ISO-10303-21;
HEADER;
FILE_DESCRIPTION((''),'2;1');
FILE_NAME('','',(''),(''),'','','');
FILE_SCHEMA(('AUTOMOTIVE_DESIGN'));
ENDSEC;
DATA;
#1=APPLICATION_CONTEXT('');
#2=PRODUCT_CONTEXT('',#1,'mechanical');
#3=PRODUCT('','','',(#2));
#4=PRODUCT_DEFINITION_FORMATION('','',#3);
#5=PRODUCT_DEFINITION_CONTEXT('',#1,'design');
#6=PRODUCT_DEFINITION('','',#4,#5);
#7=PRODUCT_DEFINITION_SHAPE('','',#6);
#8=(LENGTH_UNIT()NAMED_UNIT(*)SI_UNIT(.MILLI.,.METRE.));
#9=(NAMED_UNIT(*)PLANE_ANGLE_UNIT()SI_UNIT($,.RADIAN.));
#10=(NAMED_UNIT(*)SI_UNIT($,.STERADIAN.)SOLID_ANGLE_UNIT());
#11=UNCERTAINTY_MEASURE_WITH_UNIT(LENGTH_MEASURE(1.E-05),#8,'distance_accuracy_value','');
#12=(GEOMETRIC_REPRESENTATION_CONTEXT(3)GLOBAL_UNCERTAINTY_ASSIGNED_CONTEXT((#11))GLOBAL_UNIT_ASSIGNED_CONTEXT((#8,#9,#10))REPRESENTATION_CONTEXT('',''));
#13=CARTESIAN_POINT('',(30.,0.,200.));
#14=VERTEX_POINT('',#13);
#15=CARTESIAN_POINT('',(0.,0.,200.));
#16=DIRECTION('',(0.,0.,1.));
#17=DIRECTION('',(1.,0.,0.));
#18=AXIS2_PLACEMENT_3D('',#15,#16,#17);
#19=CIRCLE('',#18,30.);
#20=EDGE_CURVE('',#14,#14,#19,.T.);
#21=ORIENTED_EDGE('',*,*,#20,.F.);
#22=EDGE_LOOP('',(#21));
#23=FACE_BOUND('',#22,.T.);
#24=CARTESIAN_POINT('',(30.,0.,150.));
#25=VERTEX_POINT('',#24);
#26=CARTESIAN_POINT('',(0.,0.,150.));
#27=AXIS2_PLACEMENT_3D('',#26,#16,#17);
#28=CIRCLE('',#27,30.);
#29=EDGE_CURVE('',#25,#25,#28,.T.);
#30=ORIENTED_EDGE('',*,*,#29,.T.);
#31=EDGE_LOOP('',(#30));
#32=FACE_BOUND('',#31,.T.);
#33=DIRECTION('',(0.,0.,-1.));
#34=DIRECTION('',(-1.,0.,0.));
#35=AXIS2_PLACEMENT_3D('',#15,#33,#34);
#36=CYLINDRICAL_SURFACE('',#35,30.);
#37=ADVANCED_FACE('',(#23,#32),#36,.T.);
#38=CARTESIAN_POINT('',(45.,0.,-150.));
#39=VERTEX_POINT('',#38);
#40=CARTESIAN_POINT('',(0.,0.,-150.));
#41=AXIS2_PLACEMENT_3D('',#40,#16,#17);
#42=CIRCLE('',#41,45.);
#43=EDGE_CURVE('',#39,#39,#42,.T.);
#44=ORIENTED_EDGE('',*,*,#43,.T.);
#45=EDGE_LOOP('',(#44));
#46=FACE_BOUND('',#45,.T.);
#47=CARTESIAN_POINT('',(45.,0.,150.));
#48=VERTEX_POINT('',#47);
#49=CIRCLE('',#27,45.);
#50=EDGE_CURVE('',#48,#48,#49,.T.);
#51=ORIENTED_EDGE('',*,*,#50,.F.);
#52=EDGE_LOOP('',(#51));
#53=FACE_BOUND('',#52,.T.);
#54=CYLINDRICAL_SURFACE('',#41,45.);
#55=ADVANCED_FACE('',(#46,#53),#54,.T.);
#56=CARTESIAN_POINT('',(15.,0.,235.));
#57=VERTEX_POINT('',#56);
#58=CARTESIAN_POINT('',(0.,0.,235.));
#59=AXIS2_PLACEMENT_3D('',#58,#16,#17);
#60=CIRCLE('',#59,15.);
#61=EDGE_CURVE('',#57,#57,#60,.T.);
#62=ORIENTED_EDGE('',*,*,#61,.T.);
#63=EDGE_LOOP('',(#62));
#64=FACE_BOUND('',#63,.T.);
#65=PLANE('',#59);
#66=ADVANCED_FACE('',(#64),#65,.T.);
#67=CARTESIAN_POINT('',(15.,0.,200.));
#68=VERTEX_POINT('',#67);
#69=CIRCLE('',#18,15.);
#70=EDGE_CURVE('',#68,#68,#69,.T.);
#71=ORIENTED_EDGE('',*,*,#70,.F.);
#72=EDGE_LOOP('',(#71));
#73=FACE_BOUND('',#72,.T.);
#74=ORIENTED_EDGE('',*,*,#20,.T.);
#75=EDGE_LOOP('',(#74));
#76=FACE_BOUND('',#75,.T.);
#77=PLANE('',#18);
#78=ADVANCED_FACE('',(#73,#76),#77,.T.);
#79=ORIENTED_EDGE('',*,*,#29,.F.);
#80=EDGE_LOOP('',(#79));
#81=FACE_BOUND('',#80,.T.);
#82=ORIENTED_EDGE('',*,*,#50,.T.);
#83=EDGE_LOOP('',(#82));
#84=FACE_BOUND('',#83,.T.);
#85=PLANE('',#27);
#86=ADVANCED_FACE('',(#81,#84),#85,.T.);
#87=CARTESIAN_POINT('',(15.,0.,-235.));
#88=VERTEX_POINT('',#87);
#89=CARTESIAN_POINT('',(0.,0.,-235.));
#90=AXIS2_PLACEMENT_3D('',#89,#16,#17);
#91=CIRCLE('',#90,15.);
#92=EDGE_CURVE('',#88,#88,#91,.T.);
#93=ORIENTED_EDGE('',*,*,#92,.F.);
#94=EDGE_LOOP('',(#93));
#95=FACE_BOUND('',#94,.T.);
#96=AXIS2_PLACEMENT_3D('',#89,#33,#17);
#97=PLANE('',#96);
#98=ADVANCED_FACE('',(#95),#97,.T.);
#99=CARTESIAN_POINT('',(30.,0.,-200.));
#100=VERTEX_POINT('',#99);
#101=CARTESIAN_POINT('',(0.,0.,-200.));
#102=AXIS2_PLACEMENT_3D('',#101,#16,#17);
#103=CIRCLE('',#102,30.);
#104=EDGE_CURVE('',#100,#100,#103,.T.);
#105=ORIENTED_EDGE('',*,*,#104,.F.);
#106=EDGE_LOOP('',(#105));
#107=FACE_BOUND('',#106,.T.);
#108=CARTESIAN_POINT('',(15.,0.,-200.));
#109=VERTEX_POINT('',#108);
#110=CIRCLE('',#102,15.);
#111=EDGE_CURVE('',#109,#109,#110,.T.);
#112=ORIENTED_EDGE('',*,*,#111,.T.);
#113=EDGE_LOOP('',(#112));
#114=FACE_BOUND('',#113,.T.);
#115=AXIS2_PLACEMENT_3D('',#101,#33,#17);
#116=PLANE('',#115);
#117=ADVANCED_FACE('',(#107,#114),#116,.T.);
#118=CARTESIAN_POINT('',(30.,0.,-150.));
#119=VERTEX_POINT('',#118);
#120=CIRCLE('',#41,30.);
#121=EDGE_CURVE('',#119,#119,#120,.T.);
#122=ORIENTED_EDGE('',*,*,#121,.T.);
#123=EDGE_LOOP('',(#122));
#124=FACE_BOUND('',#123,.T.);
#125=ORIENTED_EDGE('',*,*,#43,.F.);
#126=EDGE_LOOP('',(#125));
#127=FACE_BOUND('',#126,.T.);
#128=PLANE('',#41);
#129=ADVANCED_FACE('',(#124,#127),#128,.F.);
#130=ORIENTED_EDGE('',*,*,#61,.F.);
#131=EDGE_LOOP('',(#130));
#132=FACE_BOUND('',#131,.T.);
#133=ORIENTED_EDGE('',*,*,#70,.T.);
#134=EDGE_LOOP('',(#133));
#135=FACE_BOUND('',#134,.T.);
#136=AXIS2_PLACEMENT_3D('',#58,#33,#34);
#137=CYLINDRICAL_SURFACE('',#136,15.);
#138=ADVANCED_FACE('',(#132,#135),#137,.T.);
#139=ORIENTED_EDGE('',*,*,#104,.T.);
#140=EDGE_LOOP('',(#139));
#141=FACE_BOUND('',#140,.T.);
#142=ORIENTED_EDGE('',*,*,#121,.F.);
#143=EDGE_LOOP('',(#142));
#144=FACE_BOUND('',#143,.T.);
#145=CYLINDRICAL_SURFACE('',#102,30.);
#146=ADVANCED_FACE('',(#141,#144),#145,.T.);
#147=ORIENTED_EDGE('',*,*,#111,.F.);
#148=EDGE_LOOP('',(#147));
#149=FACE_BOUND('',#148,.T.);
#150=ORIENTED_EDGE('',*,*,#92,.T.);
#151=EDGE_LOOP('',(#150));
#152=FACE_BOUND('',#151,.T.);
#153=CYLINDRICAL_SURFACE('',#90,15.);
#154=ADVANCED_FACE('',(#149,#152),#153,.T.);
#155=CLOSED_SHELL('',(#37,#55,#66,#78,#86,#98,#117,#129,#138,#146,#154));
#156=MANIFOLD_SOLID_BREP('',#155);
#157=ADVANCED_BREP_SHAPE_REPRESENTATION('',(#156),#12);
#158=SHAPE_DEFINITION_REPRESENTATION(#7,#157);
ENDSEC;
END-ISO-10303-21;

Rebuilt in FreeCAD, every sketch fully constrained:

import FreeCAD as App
import Part
import Sketcher

doc = App.newDocument("Part")
body = doc.addObject("PartDesign::Body", "Body")

# Sketch on XY plane
sketch1 = body.newObject("Sketcher::SketchObject", "Sketch")
sketch1.AttachmentSupport = (doc.getObject("XY_Plane"), [""])
sketch1.MapMode = "FlatFace"
sketch1.addGeometry(Part.Circle(App.Vector(0, 0, 0), App.Vector(0, 0, 1), 45), False)
sketch1.addConstraint(Sketcher.Constraint("Coincident", 0, 3, -1, 1))
sketch1.addConstraint(Sketcher.Constraint("Diameter", 0, 90.0))
pad1 = body.newObject("PartDesign::Pad", "Pad")
pad1.Profile = sketch1
pad1.Length = 300
pad1.Midplane = True

# Sketch on XY plane
sketch2 = body.newObject("Sketcher::SketchObject", "Sketch001")
sketch2.AttachmentSupport = (doc.getObject("XY_Plane"), [""])
sketch2.MapMode = "FlatFace"
sketch2.AttachmentOffset = App.Placement(App.Vector(0, 0, 150), App.Rotation())
sketch2.addGeometry(Part.Circle(App.Vector(0, 0, 0), App.Vector(0, 0, 1), 30), False)
sketch2.addConstraint(Sketcher.Constraint("Coincident", 0, 3, -1, 1))
sketch2.addConstraint(Sketcher.Constraint("Diameter", 0, 60.0))
pad2 = body.newObject("PartDesign::Pad", "Pad001")
pad2.Profile = sketch2
pad2.Length = 50

# Sketch on XY plane
sketch3 = body.newObject("Sketcher::SketchObject", "Sketch002")
sketch3.AttachmentSupport = (doc.getObject("XY_Plane"), [""])
sketch3.MapMode = "FlatFace"
sketch3.AttachmentOffset = App.Placement(App.Vector(0, 0, 200), App.Rotation())
sketch3.addGeometry(Part.Circle(App.Vector(0, 0, 0), App.Vector(0, 0, 1), 15), False)
sketch3.addConstraint(Sketcher.Constraint("Coincident", 0, 3, -1, 1))
sketch3.addConstraint(Sketcher.Constraint("Diameter", 0, 30.0))
pad3 = body.newObject("PartDesign::Pad", "Pad002")
pad3.Profile = sketch3
pad3.Length = 35
doc.recompute()

mirrored = body.newObject("PartDesign::Mirrored", "Mirrored")
mirrored.Originals = [pad2, pad3]
mirrored.MirrorPlane = (doc.getObject("XY_Plane"), [""])
body.Tip = mirrored

doc.recompute()
